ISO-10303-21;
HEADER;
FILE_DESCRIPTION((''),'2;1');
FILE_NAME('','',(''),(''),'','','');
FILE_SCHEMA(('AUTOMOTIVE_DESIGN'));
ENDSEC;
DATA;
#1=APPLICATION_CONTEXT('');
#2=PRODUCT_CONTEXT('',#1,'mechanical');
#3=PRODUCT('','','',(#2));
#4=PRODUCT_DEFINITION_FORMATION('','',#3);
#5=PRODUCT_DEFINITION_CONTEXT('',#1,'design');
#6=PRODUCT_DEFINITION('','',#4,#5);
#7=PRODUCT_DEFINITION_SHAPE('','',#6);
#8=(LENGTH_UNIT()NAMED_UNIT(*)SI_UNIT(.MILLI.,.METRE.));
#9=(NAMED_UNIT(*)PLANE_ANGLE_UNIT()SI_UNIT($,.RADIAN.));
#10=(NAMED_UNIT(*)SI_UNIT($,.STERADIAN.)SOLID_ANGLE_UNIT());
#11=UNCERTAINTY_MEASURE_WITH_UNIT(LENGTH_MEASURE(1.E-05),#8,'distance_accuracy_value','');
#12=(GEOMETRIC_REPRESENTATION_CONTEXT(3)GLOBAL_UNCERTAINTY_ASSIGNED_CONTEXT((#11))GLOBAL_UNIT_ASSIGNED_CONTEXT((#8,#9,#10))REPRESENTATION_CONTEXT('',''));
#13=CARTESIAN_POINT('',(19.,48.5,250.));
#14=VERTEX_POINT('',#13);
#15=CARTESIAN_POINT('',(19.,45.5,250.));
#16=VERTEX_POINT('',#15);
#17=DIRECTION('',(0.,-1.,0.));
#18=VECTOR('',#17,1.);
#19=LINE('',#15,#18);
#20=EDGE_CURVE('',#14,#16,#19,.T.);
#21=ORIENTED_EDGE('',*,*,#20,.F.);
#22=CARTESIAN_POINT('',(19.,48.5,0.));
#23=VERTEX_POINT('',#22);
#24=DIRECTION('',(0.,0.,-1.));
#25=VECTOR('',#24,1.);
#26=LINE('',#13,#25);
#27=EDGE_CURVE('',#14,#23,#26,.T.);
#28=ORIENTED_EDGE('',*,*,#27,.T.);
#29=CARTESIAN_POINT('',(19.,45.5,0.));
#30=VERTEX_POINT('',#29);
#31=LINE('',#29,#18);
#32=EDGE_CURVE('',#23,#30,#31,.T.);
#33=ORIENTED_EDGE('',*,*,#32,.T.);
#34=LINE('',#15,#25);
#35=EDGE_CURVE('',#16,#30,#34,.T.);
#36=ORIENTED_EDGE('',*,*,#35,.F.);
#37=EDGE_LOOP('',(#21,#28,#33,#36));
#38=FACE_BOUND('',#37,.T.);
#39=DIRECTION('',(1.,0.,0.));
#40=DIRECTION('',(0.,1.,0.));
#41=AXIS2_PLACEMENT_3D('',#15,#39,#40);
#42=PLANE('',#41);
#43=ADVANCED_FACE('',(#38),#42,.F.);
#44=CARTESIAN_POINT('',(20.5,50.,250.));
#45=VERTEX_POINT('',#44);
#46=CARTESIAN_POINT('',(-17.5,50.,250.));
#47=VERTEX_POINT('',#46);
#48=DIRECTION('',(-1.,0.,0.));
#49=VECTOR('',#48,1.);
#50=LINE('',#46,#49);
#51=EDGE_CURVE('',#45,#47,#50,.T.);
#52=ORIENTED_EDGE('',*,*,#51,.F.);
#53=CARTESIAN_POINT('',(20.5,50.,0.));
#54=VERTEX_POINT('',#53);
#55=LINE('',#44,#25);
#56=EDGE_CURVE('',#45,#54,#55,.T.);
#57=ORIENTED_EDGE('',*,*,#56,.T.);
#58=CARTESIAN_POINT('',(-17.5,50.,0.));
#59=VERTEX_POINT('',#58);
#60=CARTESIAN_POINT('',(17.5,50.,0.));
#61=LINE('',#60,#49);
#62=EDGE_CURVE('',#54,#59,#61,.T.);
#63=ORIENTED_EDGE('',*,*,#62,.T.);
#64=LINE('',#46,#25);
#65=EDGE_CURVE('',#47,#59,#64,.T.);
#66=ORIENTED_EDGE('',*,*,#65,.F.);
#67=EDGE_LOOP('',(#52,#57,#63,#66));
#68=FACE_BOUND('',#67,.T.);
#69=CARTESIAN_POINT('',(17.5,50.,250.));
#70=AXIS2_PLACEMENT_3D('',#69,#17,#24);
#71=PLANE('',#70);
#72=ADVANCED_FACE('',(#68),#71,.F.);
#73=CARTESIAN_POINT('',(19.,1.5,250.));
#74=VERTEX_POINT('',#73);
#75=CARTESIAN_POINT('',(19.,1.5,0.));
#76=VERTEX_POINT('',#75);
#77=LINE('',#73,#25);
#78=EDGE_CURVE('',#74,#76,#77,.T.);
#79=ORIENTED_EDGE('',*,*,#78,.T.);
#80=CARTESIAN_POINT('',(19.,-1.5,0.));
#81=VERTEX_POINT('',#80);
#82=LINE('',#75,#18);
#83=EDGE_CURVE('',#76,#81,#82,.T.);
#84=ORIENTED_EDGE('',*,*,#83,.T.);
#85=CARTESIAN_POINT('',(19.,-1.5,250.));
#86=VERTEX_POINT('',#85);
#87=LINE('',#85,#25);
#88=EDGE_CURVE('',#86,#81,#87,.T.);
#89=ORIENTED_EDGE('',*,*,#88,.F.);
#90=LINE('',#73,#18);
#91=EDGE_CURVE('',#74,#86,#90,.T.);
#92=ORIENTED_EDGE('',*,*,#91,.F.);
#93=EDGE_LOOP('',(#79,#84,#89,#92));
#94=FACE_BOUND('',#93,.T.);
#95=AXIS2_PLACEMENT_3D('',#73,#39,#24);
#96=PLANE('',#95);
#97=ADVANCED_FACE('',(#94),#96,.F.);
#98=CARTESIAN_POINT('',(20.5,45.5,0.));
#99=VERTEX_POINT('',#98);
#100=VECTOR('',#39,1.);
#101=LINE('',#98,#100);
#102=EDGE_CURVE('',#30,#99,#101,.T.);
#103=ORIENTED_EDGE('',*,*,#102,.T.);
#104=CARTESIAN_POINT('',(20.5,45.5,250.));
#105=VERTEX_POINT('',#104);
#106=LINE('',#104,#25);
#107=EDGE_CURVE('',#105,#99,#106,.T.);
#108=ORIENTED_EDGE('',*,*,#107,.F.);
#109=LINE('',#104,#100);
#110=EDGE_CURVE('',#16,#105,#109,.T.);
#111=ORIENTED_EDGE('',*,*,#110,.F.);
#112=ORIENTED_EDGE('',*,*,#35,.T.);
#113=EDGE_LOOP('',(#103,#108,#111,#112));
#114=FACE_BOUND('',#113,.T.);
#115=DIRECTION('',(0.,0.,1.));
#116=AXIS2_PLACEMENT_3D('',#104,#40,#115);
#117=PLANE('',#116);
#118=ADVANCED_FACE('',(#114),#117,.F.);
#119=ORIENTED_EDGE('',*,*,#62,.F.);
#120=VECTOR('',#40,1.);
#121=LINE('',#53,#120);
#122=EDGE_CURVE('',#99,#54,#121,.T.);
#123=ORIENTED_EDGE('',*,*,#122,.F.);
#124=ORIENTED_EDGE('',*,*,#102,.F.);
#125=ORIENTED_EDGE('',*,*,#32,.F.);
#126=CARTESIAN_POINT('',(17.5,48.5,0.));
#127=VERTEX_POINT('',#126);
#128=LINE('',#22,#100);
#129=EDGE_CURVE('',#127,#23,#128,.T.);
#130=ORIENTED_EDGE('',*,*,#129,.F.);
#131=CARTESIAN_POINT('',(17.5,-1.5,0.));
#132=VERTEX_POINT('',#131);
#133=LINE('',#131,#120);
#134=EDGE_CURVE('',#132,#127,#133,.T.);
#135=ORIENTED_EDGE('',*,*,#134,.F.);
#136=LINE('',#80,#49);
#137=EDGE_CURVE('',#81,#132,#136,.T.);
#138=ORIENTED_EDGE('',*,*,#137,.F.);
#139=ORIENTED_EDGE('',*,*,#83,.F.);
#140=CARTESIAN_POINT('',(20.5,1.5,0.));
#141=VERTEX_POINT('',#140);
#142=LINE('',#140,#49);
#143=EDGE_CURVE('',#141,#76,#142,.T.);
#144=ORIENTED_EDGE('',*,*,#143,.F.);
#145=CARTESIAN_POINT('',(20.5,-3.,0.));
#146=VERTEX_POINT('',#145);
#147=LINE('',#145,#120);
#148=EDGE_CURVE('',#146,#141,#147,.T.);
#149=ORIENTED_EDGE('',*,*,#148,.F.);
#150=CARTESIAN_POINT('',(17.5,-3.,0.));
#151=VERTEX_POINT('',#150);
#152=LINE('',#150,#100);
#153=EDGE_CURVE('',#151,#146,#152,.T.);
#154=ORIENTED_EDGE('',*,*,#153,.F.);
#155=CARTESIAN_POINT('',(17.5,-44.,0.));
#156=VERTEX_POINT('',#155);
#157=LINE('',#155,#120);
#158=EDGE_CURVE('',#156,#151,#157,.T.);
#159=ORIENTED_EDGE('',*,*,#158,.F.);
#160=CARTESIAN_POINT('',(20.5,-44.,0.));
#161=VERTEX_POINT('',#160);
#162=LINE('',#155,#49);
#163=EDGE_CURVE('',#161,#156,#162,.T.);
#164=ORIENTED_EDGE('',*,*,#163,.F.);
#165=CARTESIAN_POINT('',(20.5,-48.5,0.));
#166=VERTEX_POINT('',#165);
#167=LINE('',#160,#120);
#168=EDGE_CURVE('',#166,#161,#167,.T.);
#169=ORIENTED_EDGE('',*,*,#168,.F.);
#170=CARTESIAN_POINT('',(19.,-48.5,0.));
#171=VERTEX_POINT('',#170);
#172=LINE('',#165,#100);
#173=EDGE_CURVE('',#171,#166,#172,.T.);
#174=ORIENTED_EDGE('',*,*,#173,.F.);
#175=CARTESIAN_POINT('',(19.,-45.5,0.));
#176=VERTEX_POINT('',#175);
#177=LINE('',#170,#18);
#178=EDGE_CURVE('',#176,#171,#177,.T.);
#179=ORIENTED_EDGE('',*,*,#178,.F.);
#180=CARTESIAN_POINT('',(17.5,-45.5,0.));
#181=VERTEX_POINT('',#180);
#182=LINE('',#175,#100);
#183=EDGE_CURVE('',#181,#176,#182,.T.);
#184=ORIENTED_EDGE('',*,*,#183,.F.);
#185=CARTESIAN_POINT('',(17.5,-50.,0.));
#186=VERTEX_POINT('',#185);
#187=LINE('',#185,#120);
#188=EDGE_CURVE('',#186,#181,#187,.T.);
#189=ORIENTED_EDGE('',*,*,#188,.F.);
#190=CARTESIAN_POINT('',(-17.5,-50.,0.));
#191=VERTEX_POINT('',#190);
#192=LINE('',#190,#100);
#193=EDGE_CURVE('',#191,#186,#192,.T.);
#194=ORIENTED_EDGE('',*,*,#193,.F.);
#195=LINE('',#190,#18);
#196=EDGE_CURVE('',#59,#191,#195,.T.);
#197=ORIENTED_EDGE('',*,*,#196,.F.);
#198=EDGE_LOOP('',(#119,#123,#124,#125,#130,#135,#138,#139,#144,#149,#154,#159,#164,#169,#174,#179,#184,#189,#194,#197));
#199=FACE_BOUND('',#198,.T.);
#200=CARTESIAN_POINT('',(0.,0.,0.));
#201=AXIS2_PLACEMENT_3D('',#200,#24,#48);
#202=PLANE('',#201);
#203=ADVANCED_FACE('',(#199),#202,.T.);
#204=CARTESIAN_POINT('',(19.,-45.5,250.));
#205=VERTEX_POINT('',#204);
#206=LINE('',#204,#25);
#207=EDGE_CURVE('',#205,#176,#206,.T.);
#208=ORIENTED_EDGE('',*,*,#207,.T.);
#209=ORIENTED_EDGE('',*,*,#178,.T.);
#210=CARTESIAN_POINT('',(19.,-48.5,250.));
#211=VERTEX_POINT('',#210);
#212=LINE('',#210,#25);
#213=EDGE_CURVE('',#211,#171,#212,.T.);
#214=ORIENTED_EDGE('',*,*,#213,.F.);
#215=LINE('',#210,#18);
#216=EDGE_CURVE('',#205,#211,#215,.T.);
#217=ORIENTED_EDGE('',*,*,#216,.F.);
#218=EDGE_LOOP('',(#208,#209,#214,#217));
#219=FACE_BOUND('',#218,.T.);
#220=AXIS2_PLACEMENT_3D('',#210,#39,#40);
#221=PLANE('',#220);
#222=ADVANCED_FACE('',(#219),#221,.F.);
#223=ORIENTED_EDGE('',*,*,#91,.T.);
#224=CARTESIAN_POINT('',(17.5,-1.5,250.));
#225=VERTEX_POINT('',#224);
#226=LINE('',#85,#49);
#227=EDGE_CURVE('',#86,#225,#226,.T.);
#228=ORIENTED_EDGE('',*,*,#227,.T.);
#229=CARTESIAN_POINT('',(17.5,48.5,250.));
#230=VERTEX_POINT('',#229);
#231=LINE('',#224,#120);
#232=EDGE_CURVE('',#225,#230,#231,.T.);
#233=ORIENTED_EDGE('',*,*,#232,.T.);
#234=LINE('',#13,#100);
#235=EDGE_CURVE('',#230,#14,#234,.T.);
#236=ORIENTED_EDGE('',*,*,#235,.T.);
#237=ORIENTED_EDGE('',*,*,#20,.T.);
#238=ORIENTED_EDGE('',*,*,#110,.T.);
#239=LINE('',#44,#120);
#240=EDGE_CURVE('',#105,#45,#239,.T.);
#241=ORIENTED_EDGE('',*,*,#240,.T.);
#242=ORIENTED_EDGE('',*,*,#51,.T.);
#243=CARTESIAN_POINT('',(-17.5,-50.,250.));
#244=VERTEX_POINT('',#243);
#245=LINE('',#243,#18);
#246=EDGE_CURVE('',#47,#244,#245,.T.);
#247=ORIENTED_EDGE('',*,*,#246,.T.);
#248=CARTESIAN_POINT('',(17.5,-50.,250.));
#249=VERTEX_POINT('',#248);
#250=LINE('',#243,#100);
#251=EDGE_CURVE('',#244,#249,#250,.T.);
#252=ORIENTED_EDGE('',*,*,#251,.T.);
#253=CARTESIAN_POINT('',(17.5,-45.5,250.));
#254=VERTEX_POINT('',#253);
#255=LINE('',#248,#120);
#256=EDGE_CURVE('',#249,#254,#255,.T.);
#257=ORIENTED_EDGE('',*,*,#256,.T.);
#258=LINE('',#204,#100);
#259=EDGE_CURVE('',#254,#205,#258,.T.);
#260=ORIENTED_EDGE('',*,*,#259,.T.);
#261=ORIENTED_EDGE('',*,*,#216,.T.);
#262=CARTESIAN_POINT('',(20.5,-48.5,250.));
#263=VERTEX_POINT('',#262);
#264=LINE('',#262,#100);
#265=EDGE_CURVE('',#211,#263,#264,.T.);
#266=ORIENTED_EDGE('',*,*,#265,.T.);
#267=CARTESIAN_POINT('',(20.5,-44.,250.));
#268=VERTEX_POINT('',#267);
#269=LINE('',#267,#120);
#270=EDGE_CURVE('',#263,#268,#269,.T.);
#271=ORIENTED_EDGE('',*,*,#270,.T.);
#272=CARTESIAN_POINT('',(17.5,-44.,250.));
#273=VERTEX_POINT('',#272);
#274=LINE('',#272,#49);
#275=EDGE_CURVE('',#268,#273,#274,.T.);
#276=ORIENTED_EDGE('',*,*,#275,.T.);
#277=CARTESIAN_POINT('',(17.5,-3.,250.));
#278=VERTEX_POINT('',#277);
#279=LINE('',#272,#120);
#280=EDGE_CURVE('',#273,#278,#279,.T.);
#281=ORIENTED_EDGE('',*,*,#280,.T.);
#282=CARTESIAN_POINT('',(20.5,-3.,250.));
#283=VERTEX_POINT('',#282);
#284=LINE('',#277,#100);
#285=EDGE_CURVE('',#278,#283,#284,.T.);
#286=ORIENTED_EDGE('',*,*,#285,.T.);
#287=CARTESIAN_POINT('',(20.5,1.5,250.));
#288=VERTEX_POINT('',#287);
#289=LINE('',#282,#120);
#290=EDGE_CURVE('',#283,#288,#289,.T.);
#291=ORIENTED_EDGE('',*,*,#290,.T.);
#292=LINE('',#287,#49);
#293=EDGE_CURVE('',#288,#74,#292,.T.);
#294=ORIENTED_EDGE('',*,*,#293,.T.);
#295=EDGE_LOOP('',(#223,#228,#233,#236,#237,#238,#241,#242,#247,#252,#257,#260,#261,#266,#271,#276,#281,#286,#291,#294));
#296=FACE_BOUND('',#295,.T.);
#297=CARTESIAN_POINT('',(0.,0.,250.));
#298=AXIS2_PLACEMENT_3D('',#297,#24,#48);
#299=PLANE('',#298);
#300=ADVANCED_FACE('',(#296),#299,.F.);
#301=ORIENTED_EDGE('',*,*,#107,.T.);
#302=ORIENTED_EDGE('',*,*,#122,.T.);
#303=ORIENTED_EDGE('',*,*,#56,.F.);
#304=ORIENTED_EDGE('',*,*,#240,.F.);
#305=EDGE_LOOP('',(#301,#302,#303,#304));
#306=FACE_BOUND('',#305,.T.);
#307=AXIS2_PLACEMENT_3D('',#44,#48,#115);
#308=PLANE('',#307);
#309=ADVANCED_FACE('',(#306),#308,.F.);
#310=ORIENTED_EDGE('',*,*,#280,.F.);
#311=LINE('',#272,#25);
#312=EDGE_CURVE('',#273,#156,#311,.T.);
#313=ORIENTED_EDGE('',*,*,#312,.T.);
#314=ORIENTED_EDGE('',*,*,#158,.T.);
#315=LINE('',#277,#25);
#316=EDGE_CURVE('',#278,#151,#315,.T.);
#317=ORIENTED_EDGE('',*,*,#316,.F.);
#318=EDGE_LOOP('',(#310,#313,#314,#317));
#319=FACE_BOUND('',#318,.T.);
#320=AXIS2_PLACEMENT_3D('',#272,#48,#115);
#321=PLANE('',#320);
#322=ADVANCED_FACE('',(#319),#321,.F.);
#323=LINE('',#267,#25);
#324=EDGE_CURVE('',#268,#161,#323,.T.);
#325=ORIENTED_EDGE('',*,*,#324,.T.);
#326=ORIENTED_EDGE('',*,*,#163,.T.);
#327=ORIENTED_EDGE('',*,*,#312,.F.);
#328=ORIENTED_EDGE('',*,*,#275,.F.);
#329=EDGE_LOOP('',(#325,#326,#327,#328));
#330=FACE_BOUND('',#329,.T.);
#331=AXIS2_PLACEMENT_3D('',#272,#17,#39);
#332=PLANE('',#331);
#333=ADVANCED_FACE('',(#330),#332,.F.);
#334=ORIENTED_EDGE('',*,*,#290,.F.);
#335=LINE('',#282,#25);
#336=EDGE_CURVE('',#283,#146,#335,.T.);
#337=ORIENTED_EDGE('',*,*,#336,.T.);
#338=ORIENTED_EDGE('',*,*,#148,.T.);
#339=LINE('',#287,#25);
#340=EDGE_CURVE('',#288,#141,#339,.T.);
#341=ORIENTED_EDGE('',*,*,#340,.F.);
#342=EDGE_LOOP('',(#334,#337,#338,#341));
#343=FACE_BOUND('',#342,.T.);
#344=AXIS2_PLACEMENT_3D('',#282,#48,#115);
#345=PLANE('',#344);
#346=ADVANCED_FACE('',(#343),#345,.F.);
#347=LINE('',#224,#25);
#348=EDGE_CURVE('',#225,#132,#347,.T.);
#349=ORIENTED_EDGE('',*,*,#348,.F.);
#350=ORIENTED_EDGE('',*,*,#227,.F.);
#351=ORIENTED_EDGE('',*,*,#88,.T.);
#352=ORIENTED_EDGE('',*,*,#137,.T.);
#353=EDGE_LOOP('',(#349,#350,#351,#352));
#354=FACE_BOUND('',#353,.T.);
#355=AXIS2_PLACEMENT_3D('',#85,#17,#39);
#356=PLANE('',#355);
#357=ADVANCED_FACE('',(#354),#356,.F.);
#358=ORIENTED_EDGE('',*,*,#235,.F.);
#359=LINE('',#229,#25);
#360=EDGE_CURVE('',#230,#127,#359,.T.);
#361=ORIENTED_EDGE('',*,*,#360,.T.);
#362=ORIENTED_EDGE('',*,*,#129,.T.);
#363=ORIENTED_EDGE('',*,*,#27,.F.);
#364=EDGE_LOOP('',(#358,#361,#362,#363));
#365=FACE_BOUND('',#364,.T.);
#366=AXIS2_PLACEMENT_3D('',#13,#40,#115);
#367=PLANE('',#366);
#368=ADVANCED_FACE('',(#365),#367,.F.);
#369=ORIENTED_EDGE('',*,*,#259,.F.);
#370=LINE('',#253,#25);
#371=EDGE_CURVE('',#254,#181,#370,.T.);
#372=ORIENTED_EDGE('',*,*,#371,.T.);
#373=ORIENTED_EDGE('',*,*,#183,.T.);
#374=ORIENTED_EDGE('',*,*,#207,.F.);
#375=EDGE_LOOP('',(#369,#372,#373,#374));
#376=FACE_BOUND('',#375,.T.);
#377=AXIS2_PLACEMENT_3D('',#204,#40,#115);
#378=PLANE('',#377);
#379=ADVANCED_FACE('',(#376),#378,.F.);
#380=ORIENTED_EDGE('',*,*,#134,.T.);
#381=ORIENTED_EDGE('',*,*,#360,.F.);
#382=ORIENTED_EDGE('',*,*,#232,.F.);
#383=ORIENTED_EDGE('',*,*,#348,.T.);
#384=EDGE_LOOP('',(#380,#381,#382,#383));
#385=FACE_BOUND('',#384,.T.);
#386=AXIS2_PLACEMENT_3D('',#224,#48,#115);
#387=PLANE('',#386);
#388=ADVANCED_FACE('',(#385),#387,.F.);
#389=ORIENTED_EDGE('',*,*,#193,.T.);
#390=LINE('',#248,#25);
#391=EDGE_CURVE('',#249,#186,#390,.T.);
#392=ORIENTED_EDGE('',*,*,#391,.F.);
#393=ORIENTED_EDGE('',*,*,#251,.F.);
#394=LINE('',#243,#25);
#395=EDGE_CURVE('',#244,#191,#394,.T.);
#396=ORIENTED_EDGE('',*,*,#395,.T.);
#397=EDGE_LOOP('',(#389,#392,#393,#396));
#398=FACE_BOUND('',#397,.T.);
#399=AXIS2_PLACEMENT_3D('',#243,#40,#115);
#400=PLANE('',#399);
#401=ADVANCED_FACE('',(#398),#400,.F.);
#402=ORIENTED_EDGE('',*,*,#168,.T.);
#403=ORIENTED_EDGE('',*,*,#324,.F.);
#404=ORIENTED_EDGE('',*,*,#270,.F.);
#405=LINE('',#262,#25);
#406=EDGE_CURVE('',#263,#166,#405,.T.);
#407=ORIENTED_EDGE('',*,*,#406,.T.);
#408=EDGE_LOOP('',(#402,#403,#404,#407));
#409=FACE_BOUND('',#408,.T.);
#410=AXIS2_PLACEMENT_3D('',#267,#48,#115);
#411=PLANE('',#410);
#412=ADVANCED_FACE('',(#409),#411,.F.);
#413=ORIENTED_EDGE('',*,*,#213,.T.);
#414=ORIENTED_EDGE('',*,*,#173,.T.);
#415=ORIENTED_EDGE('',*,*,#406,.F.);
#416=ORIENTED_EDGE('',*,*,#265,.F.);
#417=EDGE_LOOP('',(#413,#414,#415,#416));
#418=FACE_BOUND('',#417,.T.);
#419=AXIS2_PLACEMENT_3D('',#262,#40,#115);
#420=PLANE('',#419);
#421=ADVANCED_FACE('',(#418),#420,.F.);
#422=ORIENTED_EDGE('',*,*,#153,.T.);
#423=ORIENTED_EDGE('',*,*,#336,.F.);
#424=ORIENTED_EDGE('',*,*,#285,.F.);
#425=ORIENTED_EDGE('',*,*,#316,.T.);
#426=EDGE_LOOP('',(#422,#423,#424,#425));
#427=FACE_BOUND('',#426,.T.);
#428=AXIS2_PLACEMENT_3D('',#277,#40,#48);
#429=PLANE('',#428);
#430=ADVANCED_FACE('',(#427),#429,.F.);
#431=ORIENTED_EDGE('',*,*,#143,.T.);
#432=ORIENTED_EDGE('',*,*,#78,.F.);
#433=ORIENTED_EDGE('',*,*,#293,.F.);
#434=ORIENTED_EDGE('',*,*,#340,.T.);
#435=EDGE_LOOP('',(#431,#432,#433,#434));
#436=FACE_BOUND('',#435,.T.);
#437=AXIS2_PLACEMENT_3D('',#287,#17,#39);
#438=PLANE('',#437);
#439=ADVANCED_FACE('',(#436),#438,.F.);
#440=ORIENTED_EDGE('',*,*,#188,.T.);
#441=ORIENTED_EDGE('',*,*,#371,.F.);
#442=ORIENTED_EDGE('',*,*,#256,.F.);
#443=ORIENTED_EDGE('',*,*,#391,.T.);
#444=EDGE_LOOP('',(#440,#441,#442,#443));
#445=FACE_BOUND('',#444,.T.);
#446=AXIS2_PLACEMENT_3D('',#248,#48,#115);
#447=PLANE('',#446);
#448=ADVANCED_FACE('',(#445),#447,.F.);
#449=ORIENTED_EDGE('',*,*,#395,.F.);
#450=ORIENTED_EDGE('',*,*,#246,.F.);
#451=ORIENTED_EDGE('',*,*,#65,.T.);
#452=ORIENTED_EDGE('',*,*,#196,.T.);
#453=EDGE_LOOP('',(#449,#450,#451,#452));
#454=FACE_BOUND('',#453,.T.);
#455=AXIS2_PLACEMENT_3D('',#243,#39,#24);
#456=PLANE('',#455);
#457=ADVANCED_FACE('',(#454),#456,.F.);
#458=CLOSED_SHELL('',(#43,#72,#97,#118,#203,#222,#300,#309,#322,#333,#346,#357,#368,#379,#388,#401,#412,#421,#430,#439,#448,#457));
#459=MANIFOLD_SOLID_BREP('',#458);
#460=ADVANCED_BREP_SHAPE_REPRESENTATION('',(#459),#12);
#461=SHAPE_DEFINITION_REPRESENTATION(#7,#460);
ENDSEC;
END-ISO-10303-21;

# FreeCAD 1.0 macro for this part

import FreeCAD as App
import Part
import Sketcher

V = App.Vector
Q = App.Units.Quantity

doc = App.newDocument("Part")
body = doc.addObject("PartDesign::Body", "Body")

# Sketch on XY plane
sketch1 = doc.addObject("Sketcher::SketchObject", "Sketch")
body.addObject(sketch1)
sketch1.AttachmentSupport = (doc.XY_Plane, [""])
sketch1.MapMode = "FlatFace"
sketch1.addGeometry([
    Part.LineSegment(V(20.5, 50, 0), V(-17.5, 50, 0)),  # 0
    Part.LineSegment(V(-17.5, 50, 0), V(-17.5, -50, 0)),  # 1
    Part.LineSegment(V(-17.5, -50, 0), V(17.5, -50, 0)),  # 2
    Part.LineSegment(V(17.5, -50, 0), V(17.5, -45.5, 0)),  # 3
    Part.LineSegment(V(17.5, -45.5, 0), V(19, -45.5, 0)),  # 4
    Part.LineSegment(V(19, -45.5, 0), V(19, -48.5, 0)),  # 5
    Part.LineSegment(V(19, -48.5, 0), V(20.5, -48.5, 0)),  # 6
    Part.LineSegment(V(20.5, -48.5, 0), V(20.5, -44, 0)),  # 7
    Part.LineSegment(V(20.5, -44, 0), V(17.5, -44, 0)),  # 8
    Part.LineSegment(V(17.5, -44, 0), V(17.5, -3, 0)),  # 9
    Part.LineSegment(V(17.5, -3, 0), V(20.5, -3, 0)),  # 10
    Part.LineSegment(V(20.5, -3, 0), V(20.5, 1.5, 0)),  # 11
    Part.LineSegment(V(20.5, 1.5, 0), V(19, 1.5, 0)),  # 12
    Part.LineSegment(V(19, 1.5, 0), V(19, -1.5, 0)),  # 13
    Part.LineSegment(V(19, -1.5, 0), V(17.5, -1.5, 0)),  # 14
    Part.LineSegment(V(17.5, -1.5, 0), V(17.5, 48.5, 0)),  # 15
    Part.LineSegment(V(17.5, 48.5, 0), V(19, 48.5, 0)),  # 16
    Part.LineSegment(V(19, 48.5, 0), V(19, 45.5, 0)),  # 17
    Part.LineSegment(V(19, 45.5, 0), V(20.5, 45.5, 0)),  # 18
    Part.LineSegment(V(20.5, 45.5, 0), V(20.5, 50, 0)),  # 19
], False)
sketch1.addConstraint([
    Sketcher.Constraint("Coincident", 0, 2, 1, 1),
    Sketcher.Constraint("Coincident", 1, 2, 2, 1),
    Sketcher.Constraint("Coincident", 2, 2, 3, 1),
    Sketcher.Constraint("Coincident", 3, 2, 4, 1),
    Sketcher.Constraint("Coincident", 4, 2, 5, 1),
    Sketcher.Constraint("Coincident", 5, 2, 6, 1),
    Sketcher.Constraint("Coincident", 6, 2, 7, 1),
    Sketcher.Constraint("Coincident", 7, 2, 8, 1),
    Sketcher.Constraint("Coincident", 8, 2, 9, 1),
    Sketcher.Constraint("Coincident", 9, 2, 10, 1),
    Sketcher.Constraint("Coincident", 10, 2, 11, 1),
    Sketcher.Constraint("Coincident", 11, 2, 12, 1),
    Sketcher.Constraint("Coincident", 12, 2, 13, 1),
    Sketcher.Constraint("Coincident", 13, 2, 14, 1),
    Sketcher.Constraint("Coincident", 14, 2, 15, 1),
    Sketcher.Constraint("Coincident", 15, 2, 16, 1),
    Sketcher.Constraint("Coincident", 16, 2, 17, 1),
    Sketcher.Constraint("Coincident", 17, 2, 18, 1),
    Sketcher.Constraint("Coincident", 18, 2, 19, 1),
    Sketcher.Constraint("Coincident", 19, 2, 0, 1),
    Sketcher.Constraint("Horizontal", 0),
    Sketcher.Constraint("Vertical", 1),
    Sketcher.Constraint("Horizontal", 2),
    Sketcher.Constraint("Vertical", 3),
    Sketcher.Constraint("Horizontal", 4),
    Sketcher.Constraint("Vertical", 5),
    Sketcher.Constraint("Horizontal", 6),
    Sketcher.Constraint("Vertical", 7),
    Sketcher.Constraint("Horizontal", 8),
    Sketcher.Constraint("Vertical", 9),
    Sketcher.Constraint("Horizontal", 10),
    Sketcher.Constraint("Vertical", 11),
    Sketcher.Constraint("Horizontal", 12),
    Sketcher.Constraint("Vertical", 13),
    Sketcher.Constraint("Horizontal", 14),
    Sketcher.Constraint("Vertical", 15),
    Sketcher.Constraint("Horizontal", 16),
    Sketcher.Constraint("Vertical", 17),
    Sketcher.Constraint("Horizontal", 18),
    Sketcher.Constraint("Vertical", 19),
    Sketcher.Constraint("Symmetric", 0, 2, 2, 2, -1, 1),
    Sketcher.Constraint("Symmetric", 5, 2, 16, 2, -1),
    Sketcher.Constraint("Vertical", 3, 2, 8, 2),
    Sketcher.Constraint("Vertical", 7, 2, 10, 2),
    Sketcher.Constraint("Vertical", 5, 2, 12, 2),
    Sketcher.Constraint("Vertical", 9, 2, 14, 2),
    Sketcher.Constraint("Vertical", 11, 2, 18, 2),
    Sketcher.Constraint("Equal", 4, 6),
    Sketcher.Constraint("Equal", 10, 5),
    Sketcher.Constraint("Equal", 3, 7),
    Sketcher.Constraint("Equal", 7, 11),
    Sketcher.Constraint("Equal", 5, 13),
    Sketcher.Constraint("Equal", 13, 17),
    Sketcher.Constraint("DistanceX", 0, 2, 0, 1, Q("38 mm")),
    Sketcher.Constraint("DistanceX", 2, 1, 2, 2, Q("35 mm")),
    Sketcher.Constraint("DistanceY", 1, 2, 1, 1, Q("100 mm")),
    Sketcher.Constraint("DistanceY", 9, 1, 9, 2, Q("41 mm")),
    Sketcher.Constraint("DistanceY", 15, 1, 15, 2, Q("50 mm")),
])
pad1 = doc.addObject("PartDesign::Pad", "Pad")
body.addObject(pad1)
pad1.Profile = sketch1
pad1.Length = 250

doc.recompute()
